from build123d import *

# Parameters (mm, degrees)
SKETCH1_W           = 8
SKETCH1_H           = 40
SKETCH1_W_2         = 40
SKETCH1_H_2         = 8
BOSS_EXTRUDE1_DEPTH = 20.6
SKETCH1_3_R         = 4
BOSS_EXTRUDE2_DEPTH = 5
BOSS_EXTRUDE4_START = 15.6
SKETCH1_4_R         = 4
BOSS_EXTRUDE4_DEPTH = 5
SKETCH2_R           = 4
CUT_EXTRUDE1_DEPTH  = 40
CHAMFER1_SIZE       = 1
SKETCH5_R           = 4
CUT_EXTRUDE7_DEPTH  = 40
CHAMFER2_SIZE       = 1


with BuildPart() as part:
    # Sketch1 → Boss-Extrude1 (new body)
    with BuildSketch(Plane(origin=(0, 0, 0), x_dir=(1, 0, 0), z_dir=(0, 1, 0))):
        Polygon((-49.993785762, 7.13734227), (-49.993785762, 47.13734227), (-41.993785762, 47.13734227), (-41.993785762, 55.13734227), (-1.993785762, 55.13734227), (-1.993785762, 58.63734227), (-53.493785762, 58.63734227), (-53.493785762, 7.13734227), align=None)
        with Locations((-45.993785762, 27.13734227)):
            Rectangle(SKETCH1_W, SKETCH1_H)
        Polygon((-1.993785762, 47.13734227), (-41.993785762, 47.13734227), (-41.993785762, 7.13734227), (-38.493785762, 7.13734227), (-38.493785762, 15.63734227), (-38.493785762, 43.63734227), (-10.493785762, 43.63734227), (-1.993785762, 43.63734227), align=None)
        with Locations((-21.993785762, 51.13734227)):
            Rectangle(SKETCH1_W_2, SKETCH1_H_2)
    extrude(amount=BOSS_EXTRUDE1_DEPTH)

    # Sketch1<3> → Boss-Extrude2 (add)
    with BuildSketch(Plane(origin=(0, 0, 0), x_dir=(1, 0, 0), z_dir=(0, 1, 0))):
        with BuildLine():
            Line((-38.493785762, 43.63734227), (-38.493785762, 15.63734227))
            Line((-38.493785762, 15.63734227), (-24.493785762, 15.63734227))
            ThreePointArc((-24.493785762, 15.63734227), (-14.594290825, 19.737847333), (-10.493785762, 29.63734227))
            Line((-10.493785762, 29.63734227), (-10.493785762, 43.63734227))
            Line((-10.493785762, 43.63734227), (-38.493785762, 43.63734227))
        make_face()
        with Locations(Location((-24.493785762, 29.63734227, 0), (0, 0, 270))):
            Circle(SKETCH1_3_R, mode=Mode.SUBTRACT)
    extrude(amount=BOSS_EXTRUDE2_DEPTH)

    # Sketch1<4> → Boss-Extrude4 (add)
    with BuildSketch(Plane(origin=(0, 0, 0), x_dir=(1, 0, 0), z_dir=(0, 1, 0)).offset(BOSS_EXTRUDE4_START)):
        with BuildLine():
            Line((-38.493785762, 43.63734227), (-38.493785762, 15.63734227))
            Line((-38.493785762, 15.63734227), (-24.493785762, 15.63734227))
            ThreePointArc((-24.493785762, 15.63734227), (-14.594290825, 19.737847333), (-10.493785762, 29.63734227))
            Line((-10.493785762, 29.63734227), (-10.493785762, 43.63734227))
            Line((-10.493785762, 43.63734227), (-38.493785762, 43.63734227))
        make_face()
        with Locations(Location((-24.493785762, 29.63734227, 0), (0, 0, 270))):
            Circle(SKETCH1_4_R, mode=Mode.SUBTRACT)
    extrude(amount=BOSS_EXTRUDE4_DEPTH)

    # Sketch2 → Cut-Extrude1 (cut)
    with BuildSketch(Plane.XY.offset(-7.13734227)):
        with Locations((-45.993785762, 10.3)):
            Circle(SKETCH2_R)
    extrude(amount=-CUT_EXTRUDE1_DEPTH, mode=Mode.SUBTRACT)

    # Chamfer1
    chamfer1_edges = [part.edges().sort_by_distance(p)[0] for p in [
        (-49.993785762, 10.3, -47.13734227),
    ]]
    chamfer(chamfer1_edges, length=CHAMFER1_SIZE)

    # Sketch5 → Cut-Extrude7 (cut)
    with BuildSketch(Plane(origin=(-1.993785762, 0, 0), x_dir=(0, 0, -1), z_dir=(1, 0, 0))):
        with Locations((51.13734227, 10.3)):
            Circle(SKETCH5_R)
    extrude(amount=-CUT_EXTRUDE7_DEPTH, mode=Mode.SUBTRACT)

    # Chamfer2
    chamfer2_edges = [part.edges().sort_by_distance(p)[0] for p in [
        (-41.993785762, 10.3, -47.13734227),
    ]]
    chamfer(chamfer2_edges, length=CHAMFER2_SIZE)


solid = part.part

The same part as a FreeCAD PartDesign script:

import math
import FreeCAD as App
import Part
import Sketcher
Q = App.Units.Quantity


def edges_at(feature, points):
    """Names of the edges that pass closest to the given points."""
    edges = feature.Shape.Edges
    near = lambda p: min(range(len(edges)), key=lambda i: edges[i].distToShape(Part.Vertex(*p))[0])
    return sorted({f"Edge{near(p) + 1}" for p in points})


def add_polygon(sketch, points):
    """Adds a closed chain of lines whose ends are joined by coincident constraints."""
    first, n = sketch.GeometryCount, len(points)
    for a, b in zip(points, points[1:] + points[:1]):
        sketch.addGeometry(Part.LineSegment(App.Vector(*a, 0), App.Vector(*b, 0)), False)
    for i in range(n):
        sketch.addConstraint(Sketcher.Constraint("Coincident", first + i, 2, first + (i + 1) % n, 1))

doc = App.newDocument("Part")
body = doc.addObject("PartDesign::Body", "Body")

sketch1 = doc.addObject("Sketcher::SketchObject", "Sketch")
body.addObject(sketch1)
sketch1.AttachmentSupport = (doc.XZ_Plane, [""])
sketch1.MapMode = "FlatFace"
add_polygon(sketch1, [(-2, -59), (-53, -59), (-53, -7), (-38, -7), (-38, -44), (-2, -44)])
sketch1.addConstraint([
    Sketcher.Constraint("Horizontal", 0),
    Sketcher.Constraint("Vertical", 1),
    Sketcher.Constraint("Horizontal", 2),
    Sketcher.Constraint("Vertical", 3),
    Sketcher.Constraint("Horizontal", 4),
    Sketcher.Constraint("Vertical", 5),
    Sketcher.Constraint("Equal", 0, 1),
    Sketcher.Constraint("Equal", 4, 3),
    Sketcher.Constraint("DistanceX", 2, 1, 2, 2, Q("15 mm")),
    Sketcher.Constraint("DistanceX", 0, 2, 0, 1, Q("51.5 mm")),
    Sketcher.Constraint("DistanceX", 0, 2, -1, 1, Q("53.493786 mm")),
    Sketcher.Constraint("DistanceY", 0, 2, -1, 1, Q("58.637342 mm")),
])
pad1 = doc.addObject("PartDesign::Pad", "Pad")
body.addObject(pad1)
pad1.Profile = sketch1
pad1.Length = 20.6
pad1.Reversed = True

sketch2 = doc.addObject("Sketcher::SketchObject", "Sketch001")
body.addObject(sketch2)
sketch2.AttachmentSupport = (doc.XZ_Plane, [""])
sketch2.MapMode = "FlatFace"
sketch2.addGeometry([
    Part.LineSegment(App.Vector(-38.5, -43.6, 0), App.Vector(-38.5, -15.6, 0)),
    Part.LineSegment(App.Vector(-38.5, -15.6, 0), App.Vector(-24.5, -15.6, 0)),
    Part.ArcOfCircle(Part.Circle(App.Vector(-24.5, -29.6, 0), App.Vector(0, 0, 1), 14), math.radians(0), math.radians(90)),
    Part.LineSegment(App.Vector(-10.5, -29.6, 0), App.Vector(-10.5, -43.6, 0)),
    Part.LineSegment(App.Vector(-10.5, -43.6, 0), App.Vector(-38.5, -43.6, 0)),
    Part.Circle(App.Vector(-24.5, -29.6, 0), App.Vector(0, 0, 1), 4),
], False)
sketch2.addConstraint([
    Sketcher.Constraint("Coincident", 0, 2, 1, 1),
    Sketcher.Constraint("Tangent", 1, 2, 2, 2),
    Sketcher.Constraint("Tangent", 2, 1, 3, 1),
    Sketcher.Constraint("Coincident", 3, 2, 4, 1),
    Sketcher.Constraint("Coincident", 4, 2, 0, 1),
    Sketcher.Constraint("Vertical", 0),
    Sketcher.Constraint("Horizontal", 1),
    Sketcher.Constraint("Vertical", 3),
    Sketcher.Constraint("Horizontal", 4),
    Sketcher.Constraint("Coincident", 5, 3, 2, 3),
    Sketcher.Constraint("Equal", 4, 0),
    Sketcher.Constraint("Diameter", 5, Q("8 mm")),
    Sketcher.Constraint("Radius", 2, Q("14 mm")),
    Sketcher.Constraint("DistanceX", 1, 1, 1, 2, Q("14 mm")),
    Sketcher.Constraint("DistanceX", 2, 3, -1, 1, Q("24.493786 mm")),
    Sketcher.Constraint("DistanceY", 2, 3, -1, 1, Q("29.637342 mm")),
])
pad2 = doc.addObject("PartDesign::Pad", "Pad001")
body.addObject(pad2)
pad2.Profile = sketch2
pad2.Length = 5
pad2.Reversed = True

sketch3 = doc.addObject("Sketcher::SketchObject", "Sketch002")
body.addObject(sketch3)
sketch3.AttachmentSupport = (doc.XZ_Plane, [""])
sketch3.MapMode = "FlatFace"
sketch3.AttachmentOffset = App.Placement(App.Vector(0, 0, -15.6), App.Rotation())
sketch3.addGeometry([
    Part.LineSegment(App.Vector(-38.5, -43.6, 0), App.Vector(-38.5, -15.6, 0)),
    Part.LineSegment(App.Vector(-38.5, -15.6, 0), App.Vector(-24.5, -15.6, 0)),
    Part.ArcOfCircle(Part.Circle(App.Vector(-24.5, -29.6, 0), App.Vector(0, 0, 1), 14), math.radians(0), math.radians(90)),
    Part.LineSegment(App.Vector(-10.5, -29.6, 0), App.Vector(-10.5, -43.6, 0)),
    Part.LineSegment(App.Vector(-10.5, -43.6, 0), App.Vector(-38.5, -43.6, 0)),
    Part.Circle(App.Vector(-24.5, -29.6, 0), App.Vector(0, 0, 1), 4),
], False)
sketch3.addConstraint([
    Sketcher.Constraint("Coincident", 0, 2, 1, 1),
    Sketcher.Constraint("Tangent", 1, 2, 2, 2),
    Sketcher.Constraint("Tangent", 2, 1, 3, 1),
    Sketcher.Constraint("Coincident", 3, 2, 4, 1),
    Sketcher.Constraint("Coincident", 4, 2, 0, 1),
    Sketcher.Constraint("Vertical", 0),
    Sketcher.Constraint("Horizontal", 1),
    Sketcher.Constraint("Vertical", 3),
    Sketcher.Constraint("Horizontal", 4),
    Sketcher.Constraint("Coincident", 5, 3, 2, 3),
    Sketcher.Constraint("Equal", 4, 0),
    Sketcher.Constraint("Diameter", 5, Q("8 mm")),
    Sketcher.Constraint("Radius", 2, Q("14 mm")),
    Sketcher.Constraint("DistanceX", 1, 1, 1, 2, Q("14 mm")),
    Sketcher.Constraint("DistanceX", 2, 3, -1, 1, Q("24.493786 mm")),
    Sketcher.Constraint("DistanceY", 2, 3, -1, 1, Q("29.637342 mm")),
])
pad3 = doc.addObject("PartDesign::Pad", "Pad002")
body.addObject(pad3)
pad3.Profile = sketch3
pad3.Length = 5
pad3.Reversed = True

sketch4 = doc.addObject("Sketcher::SketchObject", "Sketch003")
body.addObject(sketch4)
sketch4.AttachmentSupport = (doc.XY_Plane, [""])
sketch4.MapMode = "FlatFace"
sketch4.AttachmentOffset = App.Placement(App.Vector(0, 0, -7.137342), App.Rotation())
sketch4.addGeometry(Part.Circle(App.Vector(-46, 10.3, 0), App.Vector(0, 0, 1), 4), False)
sketch4.addConstraint([
    Sketcher.Constraint("Diameter", 0, Q("8 mm")),
    Sketcher.Constraint("DistanceY", -1, 1, 0, 3, Q("10.3 mm")),
    Sketcher.Constraint("DistanceX", 0, 3, -1, 1, Q("45.993786 mm")),
])
pocket1 = doc.addObject("PartDesign::Pocket", "Pocket")
body.addObject(pocket1)
pocket1.Profile = sketch4
pocket1.Length = 40
doc.recompute()

chamfer = doc.addObject("PartDesign::Chamfer", "Chamfer")
body.addObject(chamfer)
chamfer.Base = (pocket1, edges_at(pocket1, [(-49.994, 10.3, -47.137)]))
chamfer.Size = 1

sketch5 = doc.addObject("Sketcher::SketchObject", "Sketch004")
body.addObject(sketch5)
sketch5.AttachmentSupport = (doc.YZ_Plane, [""])
sketch5.MapMode = "FlatFace"
sketch5.AttachmentOffset = App.Placement(App.Vector(0, 0, -1.993786), App.Rotation())
sketch5.addGeometry(Part.Circle(App.Vector(10.3, -51.1, 0), App.Vector(0, 0, 1), 4), False)
sketch5.addConstraint([
    Sketcher.Constraint("Diameter", 0, Q("8 mm")),
    Sketcher.Constraint("DistanceX", -1, 1, 0, 3, Q("10.3 mm")),
    Sketcher.Constraint("DistanceY", 0, 3, -1, 1, Q("51.137342 mm")),
])
pocket2 = doc.addObject("PartDesign::Pocket", "Pocket001")
body.addObject(pocket2)
pocket2.Profile = sketch5
pocket2.Length = 40
doc.recompute()

chamfer2 = doc.addObject("PartDesign::Chamfer", "Chamfer001")
body.addObject(chamfer2)
chamfer2.Base = (pocket2, edges_at(pocket2, [(-41.994, 10.3, -47.137)]))
chamfer2.Size = 1

doc.recompute()
